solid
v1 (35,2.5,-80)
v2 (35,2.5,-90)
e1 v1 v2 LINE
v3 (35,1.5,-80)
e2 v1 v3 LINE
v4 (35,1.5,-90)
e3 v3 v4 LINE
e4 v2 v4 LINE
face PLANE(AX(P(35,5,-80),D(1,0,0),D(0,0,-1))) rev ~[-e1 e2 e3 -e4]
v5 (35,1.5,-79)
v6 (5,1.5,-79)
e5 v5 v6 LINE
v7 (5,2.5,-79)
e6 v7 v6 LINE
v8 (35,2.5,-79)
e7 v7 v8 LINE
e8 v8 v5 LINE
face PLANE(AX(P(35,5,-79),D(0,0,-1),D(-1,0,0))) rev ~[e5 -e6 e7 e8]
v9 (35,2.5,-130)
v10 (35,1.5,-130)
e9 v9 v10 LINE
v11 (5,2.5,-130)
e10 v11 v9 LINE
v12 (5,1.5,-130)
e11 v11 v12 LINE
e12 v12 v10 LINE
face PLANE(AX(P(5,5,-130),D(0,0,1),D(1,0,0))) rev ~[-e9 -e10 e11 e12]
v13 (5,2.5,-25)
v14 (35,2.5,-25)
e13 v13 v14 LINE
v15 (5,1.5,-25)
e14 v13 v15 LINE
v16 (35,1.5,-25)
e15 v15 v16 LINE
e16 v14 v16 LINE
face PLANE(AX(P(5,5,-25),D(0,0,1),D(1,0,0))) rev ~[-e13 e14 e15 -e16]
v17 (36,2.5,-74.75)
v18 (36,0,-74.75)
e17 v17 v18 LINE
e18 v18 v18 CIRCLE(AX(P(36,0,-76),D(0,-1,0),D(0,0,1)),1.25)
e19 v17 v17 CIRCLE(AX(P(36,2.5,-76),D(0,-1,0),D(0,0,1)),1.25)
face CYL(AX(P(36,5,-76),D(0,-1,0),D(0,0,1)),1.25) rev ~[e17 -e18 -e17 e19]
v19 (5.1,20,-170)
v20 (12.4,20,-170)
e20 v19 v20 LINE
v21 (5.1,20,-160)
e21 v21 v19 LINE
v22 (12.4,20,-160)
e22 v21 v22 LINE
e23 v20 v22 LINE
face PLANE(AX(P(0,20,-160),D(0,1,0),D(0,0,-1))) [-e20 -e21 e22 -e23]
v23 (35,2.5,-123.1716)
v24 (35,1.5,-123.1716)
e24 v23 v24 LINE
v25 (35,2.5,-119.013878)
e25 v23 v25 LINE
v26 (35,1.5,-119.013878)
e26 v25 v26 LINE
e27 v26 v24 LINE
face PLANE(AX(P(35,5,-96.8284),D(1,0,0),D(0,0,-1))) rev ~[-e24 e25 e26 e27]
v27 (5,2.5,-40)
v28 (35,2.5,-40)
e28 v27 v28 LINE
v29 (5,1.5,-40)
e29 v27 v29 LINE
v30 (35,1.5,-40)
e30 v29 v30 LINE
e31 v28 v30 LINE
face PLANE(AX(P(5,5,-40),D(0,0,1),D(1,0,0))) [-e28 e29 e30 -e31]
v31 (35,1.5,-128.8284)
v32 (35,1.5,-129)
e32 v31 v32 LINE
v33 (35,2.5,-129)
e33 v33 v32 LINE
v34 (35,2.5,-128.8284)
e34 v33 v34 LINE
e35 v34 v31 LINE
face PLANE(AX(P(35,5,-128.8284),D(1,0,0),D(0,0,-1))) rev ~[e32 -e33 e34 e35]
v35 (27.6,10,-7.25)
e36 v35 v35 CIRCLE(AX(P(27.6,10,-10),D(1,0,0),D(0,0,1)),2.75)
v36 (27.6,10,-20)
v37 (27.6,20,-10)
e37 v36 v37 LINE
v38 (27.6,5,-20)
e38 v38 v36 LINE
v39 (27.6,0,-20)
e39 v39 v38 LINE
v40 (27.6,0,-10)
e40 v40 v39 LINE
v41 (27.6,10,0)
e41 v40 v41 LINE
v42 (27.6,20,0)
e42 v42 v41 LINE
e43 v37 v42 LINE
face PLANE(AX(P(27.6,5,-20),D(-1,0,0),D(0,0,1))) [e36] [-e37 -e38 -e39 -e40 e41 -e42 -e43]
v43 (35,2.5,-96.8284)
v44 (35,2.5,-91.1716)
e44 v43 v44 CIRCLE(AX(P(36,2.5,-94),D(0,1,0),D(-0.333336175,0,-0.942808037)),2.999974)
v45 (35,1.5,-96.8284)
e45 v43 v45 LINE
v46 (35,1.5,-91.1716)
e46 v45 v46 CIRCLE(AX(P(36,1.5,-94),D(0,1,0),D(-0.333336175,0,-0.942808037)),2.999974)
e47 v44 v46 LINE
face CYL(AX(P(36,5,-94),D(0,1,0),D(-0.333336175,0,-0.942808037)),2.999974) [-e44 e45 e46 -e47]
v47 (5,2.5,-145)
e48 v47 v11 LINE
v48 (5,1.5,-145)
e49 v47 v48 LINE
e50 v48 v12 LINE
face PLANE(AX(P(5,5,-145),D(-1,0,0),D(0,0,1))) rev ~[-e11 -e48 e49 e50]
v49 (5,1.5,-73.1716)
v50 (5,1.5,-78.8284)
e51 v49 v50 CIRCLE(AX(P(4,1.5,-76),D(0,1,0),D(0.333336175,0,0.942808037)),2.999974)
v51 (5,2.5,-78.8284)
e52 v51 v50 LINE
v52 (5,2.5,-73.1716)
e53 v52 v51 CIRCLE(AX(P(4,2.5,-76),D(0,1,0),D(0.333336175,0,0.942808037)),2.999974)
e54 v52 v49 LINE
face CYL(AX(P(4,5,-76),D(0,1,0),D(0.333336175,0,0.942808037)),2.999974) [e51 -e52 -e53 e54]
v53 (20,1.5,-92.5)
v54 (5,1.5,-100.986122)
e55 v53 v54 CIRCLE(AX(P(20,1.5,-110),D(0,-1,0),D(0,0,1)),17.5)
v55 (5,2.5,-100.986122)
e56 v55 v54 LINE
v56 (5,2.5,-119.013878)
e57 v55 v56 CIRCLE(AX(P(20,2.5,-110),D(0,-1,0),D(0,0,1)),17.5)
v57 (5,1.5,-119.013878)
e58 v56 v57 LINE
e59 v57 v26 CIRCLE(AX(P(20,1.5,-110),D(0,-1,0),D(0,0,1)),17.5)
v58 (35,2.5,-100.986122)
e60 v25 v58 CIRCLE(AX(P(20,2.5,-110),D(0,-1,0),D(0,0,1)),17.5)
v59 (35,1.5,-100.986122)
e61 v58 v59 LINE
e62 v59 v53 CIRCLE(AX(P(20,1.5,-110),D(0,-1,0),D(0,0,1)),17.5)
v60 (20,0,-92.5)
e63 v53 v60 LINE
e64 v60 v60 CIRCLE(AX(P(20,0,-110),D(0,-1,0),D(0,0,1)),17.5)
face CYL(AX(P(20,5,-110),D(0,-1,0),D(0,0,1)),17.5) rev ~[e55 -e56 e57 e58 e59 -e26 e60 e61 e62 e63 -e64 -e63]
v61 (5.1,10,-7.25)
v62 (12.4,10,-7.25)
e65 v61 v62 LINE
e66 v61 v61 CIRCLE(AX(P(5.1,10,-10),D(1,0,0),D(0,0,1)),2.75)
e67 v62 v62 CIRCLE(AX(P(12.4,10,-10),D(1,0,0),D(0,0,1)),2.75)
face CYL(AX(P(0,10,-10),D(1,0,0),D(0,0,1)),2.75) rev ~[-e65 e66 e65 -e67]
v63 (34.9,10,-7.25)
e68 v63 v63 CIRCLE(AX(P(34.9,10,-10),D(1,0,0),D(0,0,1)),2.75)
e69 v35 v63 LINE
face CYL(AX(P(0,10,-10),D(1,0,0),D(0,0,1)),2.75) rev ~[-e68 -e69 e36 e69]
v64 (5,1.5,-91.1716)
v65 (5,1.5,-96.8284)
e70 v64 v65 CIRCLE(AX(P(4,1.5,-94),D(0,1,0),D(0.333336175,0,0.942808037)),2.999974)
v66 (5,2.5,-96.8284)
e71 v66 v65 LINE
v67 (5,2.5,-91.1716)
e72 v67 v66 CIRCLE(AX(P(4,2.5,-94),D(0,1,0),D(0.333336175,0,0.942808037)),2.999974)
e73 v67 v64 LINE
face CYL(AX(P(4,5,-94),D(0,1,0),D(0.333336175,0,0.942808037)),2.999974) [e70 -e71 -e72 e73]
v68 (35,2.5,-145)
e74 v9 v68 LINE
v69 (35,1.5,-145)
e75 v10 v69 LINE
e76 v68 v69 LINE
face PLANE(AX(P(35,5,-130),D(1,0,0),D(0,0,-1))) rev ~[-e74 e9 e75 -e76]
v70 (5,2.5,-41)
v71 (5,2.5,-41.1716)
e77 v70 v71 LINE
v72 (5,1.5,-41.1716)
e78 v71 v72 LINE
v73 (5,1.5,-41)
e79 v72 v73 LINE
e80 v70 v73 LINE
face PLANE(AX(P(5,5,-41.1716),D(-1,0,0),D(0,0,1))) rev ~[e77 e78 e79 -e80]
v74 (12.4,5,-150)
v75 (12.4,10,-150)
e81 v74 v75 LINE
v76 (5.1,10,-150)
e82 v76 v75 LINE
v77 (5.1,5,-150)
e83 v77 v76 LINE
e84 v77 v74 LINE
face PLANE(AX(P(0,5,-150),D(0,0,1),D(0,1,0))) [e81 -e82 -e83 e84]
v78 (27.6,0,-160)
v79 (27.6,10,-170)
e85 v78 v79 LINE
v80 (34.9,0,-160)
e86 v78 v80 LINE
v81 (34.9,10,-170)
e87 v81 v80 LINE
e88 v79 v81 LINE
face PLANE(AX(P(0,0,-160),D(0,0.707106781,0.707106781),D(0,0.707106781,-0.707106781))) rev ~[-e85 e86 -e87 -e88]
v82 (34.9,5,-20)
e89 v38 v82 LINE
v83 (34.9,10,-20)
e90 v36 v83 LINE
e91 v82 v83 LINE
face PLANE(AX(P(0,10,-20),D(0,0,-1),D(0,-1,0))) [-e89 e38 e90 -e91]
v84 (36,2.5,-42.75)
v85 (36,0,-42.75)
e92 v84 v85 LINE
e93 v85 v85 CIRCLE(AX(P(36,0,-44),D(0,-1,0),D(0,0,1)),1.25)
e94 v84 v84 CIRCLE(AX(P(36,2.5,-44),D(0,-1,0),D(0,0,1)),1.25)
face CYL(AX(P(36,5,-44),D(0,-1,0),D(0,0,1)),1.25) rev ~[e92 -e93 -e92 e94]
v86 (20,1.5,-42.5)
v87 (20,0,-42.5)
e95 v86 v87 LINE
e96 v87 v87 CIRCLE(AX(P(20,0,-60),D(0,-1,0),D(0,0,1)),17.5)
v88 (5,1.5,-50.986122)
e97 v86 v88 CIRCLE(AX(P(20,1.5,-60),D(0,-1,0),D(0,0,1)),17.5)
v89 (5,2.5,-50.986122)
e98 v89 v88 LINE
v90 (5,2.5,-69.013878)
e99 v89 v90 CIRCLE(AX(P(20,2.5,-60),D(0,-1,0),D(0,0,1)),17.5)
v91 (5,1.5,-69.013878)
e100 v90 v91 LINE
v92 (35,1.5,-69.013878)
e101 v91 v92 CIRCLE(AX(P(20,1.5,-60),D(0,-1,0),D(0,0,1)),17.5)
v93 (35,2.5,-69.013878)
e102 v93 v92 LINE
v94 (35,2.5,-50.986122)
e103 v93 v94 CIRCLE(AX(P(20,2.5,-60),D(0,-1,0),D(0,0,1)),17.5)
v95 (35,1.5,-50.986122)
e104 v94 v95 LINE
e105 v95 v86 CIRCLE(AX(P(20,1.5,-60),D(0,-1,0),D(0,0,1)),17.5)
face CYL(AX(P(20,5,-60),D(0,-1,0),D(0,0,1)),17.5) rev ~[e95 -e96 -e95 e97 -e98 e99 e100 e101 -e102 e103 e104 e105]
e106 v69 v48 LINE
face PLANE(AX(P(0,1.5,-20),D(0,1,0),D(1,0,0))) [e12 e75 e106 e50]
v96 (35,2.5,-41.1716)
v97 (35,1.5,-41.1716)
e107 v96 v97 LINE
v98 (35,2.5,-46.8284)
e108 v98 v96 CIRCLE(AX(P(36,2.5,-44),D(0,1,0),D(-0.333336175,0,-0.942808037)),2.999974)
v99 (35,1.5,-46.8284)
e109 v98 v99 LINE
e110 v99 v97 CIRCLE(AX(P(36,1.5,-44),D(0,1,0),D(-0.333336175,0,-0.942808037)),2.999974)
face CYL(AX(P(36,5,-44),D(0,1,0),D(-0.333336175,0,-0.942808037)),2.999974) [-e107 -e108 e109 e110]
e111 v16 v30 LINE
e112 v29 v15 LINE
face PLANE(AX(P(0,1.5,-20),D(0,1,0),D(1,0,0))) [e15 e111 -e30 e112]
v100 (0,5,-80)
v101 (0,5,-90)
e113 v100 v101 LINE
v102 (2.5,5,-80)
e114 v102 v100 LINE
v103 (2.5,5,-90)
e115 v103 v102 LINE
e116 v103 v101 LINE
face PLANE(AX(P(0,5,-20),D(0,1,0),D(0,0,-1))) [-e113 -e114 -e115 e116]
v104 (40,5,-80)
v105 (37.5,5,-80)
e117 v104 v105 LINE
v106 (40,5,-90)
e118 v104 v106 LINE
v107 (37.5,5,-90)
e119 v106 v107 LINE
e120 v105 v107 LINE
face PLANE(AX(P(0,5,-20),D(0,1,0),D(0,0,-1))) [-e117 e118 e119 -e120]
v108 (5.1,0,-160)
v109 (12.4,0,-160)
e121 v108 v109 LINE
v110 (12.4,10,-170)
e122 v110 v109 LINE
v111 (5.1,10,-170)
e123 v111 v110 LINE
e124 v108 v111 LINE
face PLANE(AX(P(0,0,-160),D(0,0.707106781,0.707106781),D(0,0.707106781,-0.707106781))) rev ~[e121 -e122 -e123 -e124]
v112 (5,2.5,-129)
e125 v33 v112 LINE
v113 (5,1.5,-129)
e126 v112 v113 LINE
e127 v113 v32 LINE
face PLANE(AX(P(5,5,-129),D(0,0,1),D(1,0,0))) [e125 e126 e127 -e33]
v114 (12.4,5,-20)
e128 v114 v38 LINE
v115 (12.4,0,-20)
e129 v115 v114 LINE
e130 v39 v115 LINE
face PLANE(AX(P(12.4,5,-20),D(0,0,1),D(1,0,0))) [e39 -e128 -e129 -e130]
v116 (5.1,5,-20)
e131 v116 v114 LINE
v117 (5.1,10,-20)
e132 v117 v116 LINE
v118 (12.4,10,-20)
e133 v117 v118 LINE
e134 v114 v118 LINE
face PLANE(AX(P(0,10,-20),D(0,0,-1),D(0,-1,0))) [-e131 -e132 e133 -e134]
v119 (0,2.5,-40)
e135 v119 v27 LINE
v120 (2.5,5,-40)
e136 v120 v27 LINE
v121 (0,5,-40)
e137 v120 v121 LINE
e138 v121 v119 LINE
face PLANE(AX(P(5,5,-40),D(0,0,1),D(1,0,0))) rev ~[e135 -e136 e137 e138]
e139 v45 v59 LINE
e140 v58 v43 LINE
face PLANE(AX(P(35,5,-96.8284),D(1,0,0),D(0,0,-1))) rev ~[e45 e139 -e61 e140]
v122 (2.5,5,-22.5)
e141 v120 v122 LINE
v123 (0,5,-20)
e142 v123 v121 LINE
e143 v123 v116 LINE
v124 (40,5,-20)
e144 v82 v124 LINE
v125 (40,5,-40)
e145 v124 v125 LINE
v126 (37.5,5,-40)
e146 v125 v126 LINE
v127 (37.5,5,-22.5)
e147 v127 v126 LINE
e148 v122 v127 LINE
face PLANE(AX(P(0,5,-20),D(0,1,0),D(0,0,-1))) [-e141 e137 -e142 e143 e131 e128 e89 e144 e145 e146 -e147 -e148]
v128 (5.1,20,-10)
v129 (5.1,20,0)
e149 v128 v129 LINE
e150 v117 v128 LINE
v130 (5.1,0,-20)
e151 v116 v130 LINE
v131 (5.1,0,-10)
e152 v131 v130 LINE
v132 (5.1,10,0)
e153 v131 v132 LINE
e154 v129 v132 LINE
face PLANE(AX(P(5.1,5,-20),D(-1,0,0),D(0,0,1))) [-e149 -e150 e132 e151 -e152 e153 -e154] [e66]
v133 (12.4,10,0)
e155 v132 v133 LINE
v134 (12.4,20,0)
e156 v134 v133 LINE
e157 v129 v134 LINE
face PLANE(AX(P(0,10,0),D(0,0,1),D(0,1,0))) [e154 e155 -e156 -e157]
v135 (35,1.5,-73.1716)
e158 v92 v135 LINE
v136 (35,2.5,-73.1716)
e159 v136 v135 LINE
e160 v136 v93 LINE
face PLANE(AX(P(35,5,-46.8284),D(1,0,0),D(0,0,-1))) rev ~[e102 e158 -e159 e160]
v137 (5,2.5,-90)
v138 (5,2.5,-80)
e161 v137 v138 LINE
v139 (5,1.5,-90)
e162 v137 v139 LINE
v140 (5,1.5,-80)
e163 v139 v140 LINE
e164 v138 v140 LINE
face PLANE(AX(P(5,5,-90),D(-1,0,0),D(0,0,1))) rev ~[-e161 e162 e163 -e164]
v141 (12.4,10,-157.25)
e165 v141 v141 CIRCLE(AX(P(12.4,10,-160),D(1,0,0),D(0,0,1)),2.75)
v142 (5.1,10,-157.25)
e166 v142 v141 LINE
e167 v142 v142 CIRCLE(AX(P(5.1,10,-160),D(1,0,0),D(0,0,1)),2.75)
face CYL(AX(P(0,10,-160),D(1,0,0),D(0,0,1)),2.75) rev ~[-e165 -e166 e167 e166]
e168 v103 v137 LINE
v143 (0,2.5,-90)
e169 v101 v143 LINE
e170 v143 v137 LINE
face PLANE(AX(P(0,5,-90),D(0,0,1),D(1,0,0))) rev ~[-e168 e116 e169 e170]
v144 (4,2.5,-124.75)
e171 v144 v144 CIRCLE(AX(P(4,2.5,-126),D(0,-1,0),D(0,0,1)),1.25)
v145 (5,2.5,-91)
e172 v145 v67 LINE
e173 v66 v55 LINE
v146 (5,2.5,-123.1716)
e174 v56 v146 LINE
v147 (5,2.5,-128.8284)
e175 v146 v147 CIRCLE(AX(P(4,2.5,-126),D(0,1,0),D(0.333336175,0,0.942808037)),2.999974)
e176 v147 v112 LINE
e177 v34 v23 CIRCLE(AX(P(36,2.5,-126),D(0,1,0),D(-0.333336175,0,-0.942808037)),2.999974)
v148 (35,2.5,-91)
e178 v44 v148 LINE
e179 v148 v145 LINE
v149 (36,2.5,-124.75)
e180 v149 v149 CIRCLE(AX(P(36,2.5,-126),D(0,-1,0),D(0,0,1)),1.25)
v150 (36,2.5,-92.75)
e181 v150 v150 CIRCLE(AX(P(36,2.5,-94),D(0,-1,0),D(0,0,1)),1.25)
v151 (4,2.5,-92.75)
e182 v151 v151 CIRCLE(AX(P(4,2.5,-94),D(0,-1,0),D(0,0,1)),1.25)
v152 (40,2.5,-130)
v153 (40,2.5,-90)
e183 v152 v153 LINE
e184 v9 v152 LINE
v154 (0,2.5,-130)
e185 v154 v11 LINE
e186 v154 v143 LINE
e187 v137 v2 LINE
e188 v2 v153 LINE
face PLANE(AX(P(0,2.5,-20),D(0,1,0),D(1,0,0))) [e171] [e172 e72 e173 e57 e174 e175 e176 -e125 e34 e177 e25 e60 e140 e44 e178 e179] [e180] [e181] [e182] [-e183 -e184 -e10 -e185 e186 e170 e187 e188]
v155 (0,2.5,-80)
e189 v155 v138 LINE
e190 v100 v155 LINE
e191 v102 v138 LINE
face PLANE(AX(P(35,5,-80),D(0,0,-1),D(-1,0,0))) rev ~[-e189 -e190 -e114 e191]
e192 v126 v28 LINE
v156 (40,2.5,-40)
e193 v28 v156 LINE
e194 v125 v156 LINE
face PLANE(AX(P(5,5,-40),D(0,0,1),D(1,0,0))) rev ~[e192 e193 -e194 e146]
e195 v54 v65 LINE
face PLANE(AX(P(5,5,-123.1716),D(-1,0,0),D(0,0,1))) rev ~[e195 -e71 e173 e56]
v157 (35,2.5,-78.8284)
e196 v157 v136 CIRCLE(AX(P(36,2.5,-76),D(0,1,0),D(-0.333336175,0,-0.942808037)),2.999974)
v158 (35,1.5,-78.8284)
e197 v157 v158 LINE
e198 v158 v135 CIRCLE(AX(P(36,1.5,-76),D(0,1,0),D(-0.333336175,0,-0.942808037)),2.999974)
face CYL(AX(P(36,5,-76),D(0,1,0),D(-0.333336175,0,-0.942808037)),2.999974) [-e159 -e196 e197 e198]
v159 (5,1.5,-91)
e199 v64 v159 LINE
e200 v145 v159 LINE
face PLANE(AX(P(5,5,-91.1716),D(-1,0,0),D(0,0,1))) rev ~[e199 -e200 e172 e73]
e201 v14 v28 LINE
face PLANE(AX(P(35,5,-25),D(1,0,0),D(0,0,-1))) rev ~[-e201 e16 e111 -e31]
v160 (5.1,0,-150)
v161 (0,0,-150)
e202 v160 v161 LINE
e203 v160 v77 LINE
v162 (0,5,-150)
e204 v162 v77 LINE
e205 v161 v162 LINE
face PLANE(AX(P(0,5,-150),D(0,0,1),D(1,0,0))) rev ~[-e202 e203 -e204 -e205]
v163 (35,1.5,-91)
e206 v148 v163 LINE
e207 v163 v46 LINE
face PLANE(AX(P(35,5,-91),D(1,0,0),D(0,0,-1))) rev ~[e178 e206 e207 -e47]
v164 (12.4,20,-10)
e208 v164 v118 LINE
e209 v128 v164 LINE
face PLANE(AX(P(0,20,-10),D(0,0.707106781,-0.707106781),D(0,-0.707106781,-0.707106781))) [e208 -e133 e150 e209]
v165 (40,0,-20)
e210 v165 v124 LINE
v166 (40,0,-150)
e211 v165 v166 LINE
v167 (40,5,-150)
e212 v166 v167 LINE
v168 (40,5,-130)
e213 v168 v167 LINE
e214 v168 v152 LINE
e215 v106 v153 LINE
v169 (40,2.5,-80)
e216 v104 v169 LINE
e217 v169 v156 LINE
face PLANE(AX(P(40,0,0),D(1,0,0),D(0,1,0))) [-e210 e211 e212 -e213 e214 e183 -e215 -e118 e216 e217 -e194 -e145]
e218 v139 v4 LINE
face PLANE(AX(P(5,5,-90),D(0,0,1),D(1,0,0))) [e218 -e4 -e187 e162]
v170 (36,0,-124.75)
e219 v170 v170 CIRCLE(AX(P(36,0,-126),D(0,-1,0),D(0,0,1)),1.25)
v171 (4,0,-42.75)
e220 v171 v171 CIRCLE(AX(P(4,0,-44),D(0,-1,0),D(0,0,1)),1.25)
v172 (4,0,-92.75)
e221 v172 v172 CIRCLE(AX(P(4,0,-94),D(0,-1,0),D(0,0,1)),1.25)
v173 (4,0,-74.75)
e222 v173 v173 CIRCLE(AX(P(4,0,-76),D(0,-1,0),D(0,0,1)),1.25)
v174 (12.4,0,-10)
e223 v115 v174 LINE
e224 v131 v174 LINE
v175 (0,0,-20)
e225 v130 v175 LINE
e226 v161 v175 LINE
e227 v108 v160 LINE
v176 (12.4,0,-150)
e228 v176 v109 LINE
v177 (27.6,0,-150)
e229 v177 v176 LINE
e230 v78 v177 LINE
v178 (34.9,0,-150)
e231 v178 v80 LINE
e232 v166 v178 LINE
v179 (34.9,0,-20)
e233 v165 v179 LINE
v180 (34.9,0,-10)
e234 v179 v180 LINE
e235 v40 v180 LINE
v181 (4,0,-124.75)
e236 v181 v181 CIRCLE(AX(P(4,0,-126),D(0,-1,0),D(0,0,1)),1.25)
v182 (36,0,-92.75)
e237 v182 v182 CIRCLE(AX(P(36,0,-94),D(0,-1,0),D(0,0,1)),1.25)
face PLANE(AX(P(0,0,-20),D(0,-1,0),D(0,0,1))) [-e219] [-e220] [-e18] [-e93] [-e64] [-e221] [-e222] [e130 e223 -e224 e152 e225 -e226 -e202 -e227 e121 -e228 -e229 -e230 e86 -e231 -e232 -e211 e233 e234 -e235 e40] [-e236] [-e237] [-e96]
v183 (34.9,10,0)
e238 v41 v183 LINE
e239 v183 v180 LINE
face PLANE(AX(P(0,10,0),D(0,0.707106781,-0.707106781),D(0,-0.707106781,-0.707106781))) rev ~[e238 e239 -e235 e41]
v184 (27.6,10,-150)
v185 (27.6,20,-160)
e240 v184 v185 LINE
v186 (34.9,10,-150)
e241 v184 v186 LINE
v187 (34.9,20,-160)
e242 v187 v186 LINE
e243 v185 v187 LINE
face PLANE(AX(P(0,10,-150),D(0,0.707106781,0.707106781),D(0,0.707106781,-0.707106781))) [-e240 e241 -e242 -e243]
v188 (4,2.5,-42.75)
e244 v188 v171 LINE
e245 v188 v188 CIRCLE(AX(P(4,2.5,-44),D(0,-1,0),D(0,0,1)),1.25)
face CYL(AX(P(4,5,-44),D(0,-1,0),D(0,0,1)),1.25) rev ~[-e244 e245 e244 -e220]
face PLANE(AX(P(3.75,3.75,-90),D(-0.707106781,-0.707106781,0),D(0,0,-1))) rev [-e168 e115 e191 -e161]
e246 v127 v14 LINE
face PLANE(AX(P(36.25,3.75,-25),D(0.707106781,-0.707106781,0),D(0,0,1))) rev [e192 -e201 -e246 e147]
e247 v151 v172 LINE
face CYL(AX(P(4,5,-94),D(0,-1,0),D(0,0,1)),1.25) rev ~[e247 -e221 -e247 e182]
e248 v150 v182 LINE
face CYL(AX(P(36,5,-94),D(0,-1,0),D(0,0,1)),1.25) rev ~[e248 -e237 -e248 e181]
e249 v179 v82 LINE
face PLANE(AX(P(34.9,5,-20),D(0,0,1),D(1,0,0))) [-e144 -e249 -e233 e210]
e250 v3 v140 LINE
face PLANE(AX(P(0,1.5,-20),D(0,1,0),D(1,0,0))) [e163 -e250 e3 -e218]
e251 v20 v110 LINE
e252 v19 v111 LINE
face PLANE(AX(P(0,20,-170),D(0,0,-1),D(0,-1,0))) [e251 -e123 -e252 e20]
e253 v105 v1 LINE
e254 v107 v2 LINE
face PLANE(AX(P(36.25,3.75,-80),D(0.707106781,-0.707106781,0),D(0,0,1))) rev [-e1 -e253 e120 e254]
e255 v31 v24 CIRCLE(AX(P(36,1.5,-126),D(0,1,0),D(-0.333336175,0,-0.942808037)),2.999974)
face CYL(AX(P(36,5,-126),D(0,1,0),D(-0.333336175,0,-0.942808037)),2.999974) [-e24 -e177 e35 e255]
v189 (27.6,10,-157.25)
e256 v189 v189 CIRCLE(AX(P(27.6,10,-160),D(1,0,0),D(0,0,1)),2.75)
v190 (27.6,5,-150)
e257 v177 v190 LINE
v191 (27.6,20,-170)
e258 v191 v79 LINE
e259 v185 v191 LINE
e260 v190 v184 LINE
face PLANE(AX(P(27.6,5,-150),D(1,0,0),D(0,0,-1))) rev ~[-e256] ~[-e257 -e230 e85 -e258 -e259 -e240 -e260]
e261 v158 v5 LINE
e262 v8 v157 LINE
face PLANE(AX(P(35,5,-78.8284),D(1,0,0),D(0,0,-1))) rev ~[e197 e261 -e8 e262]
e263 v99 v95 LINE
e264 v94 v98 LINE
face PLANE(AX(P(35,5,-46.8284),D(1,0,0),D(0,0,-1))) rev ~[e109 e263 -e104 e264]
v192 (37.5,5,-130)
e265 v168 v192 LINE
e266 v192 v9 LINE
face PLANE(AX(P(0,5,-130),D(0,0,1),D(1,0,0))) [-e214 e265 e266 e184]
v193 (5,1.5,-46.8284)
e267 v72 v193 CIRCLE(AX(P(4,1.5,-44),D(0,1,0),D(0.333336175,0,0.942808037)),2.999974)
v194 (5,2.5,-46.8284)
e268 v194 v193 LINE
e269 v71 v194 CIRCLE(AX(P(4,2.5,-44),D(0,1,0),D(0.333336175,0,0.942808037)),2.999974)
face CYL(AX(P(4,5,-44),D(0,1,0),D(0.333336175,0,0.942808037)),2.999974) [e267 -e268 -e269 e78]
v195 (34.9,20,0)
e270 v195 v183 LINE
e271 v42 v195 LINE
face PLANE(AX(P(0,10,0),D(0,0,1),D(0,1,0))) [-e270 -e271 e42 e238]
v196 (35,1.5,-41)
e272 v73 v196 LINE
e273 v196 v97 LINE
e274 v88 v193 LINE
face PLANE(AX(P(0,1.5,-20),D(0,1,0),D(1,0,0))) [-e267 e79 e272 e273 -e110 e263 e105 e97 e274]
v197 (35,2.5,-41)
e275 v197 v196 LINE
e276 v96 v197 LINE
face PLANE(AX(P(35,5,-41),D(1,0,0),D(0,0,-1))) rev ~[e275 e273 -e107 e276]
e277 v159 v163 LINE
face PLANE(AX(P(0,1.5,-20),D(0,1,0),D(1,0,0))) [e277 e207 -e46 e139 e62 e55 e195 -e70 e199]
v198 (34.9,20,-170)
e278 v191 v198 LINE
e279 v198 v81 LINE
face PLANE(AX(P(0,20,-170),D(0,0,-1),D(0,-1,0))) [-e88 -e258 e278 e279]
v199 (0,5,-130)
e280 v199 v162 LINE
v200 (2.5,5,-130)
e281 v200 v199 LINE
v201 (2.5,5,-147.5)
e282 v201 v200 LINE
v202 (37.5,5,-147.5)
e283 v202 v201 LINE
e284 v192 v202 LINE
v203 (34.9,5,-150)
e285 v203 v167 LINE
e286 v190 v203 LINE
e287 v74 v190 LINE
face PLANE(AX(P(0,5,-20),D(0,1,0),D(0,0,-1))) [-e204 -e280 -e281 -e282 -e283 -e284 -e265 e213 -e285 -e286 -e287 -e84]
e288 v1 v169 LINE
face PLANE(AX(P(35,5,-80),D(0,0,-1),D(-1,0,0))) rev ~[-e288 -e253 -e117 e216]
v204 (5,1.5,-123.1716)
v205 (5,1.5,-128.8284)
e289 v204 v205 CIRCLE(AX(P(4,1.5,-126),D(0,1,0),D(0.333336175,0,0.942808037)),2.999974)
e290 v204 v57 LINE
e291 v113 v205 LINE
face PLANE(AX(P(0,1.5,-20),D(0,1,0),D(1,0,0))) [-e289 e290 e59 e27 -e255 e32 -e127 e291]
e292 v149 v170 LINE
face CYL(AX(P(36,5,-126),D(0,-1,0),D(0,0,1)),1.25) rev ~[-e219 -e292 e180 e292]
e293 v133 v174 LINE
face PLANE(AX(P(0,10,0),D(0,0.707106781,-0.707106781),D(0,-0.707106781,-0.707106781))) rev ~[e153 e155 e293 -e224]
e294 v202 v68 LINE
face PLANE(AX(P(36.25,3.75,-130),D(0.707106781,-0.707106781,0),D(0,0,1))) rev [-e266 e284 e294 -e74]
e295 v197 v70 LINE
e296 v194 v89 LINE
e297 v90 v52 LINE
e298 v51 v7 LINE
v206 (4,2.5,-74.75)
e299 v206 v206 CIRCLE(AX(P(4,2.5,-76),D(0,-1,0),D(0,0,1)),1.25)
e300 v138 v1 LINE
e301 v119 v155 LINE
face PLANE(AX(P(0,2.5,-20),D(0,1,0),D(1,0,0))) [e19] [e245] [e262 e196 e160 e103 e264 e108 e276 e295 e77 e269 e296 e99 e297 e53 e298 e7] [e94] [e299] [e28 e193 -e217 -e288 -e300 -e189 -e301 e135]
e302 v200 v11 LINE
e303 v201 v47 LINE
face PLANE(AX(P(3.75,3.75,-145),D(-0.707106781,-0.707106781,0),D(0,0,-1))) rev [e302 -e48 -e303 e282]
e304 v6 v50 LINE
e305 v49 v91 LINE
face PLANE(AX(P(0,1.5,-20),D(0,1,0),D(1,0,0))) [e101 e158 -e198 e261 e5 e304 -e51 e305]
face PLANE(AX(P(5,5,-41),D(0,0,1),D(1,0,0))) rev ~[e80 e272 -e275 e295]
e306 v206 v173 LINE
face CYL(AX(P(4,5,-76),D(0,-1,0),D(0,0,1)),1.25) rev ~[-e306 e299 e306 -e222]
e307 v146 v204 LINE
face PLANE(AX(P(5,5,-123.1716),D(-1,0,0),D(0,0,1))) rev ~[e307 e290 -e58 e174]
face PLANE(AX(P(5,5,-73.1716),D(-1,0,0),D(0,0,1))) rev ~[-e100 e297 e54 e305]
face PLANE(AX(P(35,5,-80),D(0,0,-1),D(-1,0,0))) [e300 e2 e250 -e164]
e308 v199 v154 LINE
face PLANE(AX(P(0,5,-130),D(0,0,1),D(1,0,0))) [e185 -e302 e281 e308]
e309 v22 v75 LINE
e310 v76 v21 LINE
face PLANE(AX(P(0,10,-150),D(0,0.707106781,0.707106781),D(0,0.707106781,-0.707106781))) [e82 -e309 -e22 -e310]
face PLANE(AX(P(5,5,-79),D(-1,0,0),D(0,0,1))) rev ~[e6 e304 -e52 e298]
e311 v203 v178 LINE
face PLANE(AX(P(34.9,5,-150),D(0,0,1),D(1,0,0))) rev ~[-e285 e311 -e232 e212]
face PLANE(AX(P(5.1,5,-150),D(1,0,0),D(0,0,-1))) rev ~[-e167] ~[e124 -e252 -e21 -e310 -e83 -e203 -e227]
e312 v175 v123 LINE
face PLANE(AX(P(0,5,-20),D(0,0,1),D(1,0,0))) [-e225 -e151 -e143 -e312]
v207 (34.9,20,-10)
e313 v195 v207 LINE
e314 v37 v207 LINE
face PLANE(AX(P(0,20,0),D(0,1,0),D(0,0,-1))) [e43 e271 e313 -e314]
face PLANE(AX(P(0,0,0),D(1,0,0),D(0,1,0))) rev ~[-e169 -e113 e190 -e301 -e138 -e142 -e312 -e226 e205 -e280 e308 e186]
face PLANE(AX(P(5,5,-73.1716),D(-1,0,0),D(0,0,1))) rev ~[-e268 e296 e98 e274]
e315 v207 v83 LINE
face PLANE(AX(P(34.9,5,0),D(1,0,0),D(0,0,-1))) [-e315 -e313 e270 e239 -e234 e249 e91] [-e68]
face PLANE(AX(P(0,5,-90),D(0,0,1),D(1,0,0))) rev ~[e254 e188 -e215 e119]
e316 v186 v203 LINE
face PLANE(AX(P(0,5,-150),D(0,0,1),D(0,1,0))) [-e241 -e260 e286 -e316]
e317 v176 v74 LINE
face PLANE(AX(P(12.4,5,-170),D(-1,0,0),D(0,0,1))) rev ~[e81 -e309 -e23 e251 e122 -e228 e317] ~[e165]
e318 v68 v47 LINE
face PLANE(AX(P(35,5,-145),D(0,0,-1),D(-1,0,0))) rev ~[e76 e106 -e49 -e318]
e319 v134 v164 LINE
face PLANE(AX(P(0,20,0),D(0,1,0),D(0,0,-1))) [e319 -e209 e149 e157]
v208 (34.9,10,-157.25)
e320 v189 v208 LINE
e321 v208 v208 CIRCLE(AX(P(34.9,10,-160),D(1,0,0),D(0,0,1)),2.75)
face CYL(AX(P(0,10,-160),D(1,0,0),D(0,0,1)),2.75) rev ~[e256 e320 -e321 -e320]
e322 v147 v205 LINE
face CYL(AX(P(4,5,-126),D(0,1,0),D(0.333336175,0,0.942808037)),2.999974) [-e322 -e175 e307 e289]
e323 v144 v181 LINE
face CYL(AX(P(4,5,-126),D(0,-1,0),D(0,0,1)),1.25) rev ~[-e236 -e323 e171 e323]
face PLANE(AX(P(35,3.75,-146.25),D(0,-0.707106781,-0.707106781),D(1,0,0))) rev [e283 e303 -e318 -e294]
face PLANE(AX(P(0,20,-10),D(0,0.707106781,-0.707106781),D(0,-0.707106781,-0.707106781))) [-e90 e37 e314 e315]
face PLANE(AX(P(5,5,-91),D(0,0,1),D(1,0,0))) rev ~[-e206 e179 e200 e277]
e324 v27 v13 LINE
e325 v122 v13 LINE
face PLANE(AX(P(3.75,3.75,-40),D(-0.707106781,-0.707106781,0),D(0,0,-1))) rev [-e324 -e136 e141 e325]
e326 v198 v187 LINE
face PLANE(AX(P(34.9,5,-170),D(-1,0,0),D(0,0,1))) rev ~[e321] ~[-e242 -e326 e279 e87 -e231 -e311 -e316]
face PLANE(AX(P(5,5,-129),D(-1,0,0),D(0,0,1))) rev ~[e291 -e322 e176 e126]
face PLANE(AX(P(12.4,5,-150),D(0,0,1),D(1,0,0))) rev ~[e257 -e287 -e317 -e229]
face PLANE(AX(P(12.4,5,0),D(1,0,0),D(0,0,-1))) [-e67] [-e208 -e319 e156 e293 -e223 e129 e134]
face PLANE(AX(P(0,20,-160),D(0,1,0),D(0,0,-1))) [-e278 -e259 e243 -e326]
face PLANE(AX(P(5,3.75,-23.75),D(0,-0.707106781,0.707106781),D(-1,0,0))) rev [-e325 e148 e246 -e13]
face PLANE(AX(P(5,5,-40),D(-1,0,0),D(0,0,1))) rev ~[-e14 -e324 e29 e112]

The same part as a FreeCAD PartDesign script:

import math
import FreeCAD as App
import Part
import Sketcher

V = App.Vector


def edges_at(feature, points):
    """Names of the edges that pass closest to the given points."""
    edges = feature.Shape.Edges
    near = lambda p: min(range(len(edges)), key=lambda i: edges[i].distToShape(Part.Vertex(*p))[0])
    return sorted({f"Edge{near(p) + 1}" for p in points})


def add_polygon(sketch, points):
    """Adds a closed chain of lines whose ends are joined by coincident constraints."""
    first, n = sketch.GeometryCount, len(points)
    for a, b in zip(points, points[1:] + points[:1]):
        sketch.addGeometry(Part.LineSegment(App.Vector(*a, 0), App.Vector(*b, 0)), False)
    for i in range(n):
        sketch.addConstraint(Sketcher.Constraint("Coincident", first + i, 2, first + (i + 1) % n, 1))

doc = App.newDocument("Part")
params = doc.addObject("Spreadsheet::Sheet", "Params")
for row, (alias, value) in enumerate([
    ("sketch1_width", "5 mm"),
    ("sketch1_height", "130 mm"),
    ("pad1_length", "40 mm"),
    ("sketch2_diameter", "5.5 mm"),
    ("hole_diameter", "5.5 mm"),
    ("sketch3_radius", "3 mm"),
    ("sketch3_height", "10 mm"),
    ("sketch3_height2", "15 mm"),
    ("pocket1_length", "3.5 mm"),
    ("sketch4_width", "40 mm"),
    ("pocket2_length", "2.5 mm"),
    ("sketch5_diameter", "2.5 mm"),
    ("hole2_diameter", "2.5 mm"),
    ("sketch6_diameter", "35 mm"),
    ("hole3_diameter", "35 mm"),
    ("chamfer_size", "2.5 mm"),
    ("sketch7_height", "20 mm"),
    ("sketch7_width", "5.1 mm"),
    ("sketch7_width2", "15.2 mm"),
], start=1):
    params.set(f"A{row}", alias)
    params.set(f"B{row}", "=" + value)
    params.setAlias(f"B{row}", alias)

body = doc.addObject("PartDesign::Body", "Body")

sketch1 = body.newObject("Sketcher::SketchObject", "Sketch")
sketch1.AttachmentSupport = (doc.getObject("YZ_Plane"), [""])
sketch1.MapMode = "FlatFace"
add_polygon(sketch1, [(20, 0), (10, 0), (0, -10), (0, -160), (10, -170), (20, -170), (20, -160), (10, -150), (5, -150), (5, -20), (10, -20), (20, -10)])
sketch1.addConstraint([
    Sketcher.Constraint("Horizontal", 0),
    Sketcher.Constraint("Vertical", 2),
    Sketcher.Constraint("Horizontal", 4),
    Sketcher.Constraint("Vertical", 5),
    Sketcher.Constraint("Horizontal", 7),
    Sketcher.Constraint("Vertical", 8),
    Sketcher.Constraint("Horizontal", 9),
    Sketcher.Constraint("Vertical", 11),
    Sketcher.Constraint("PointOnObject", 0, 2, -1),
    Sketcher.Constraint("PointOnObject", 1, 2, -2),
    Sketcher.Constraint("Perpendicular", 1, 3),
    Sketcher.Constraint("Parallel", 3, 6),
    Sketcher.Constraint("Perpendicular", 6, 10),
    Sketcher.Constraint("Horizontal", 2, 2, 5, 2),
    Sketcher.Constraint("Horizontal", 1, 2, 10, 2),
    Sketcher.Constraint("Vertical", 0, 2, 3, 2),
    Sketcher.Constraint("Vertical", 3, 2, 6, 2),
    Sketcher.Constraint("Vertical", 6, 2, 9, 2),
    Sketcher.Constraint("Vertical", 5, 2, 10, 2),
    Sketcher.Constraint("Equal", 4, 5),
    Sketcher.Constraint("Equal", 5, 11),
    Sketcher.Constraint("DistanceX", 7, 2, 7, 1, 5.0),
    Sketcher.Constraint("DistanceY", 8, 1, 8, 2, 130.0),
    Sketcher.Constraint("DistanceX", -1, 1, 4, 2, 20.0),
])
sketch1.setExpression("Constraints[33]", "Params.sketch1_width")
sketch1.setExpression("Constraints[34]", "Params.sketch1_height")
pad1 = body.newObject("PartDesign::Pad", "Pad")
pad1.Profile = sketch1
pad1.setExpression("Length", "Params.pad1_length")

sketch2 = body.newObject("Sketcher::SketchObject", "Sketch001")
sketch2.AttachmentSupport = (doc.getObject("YZ_Plane"), [""])
sketch2.MapMode = "FlatFace"
sketch2.addGeometry([
    Part.Circle(V(10, -160, 0), V(0, 0, 1), 2.75),
    Part.Circle(V(10, -10, 0), V(0, 0, 1), 2.75),
], False)
sketch2.addConstraint([
    Sketcher.Constraint("Equal", 0, 1),
    Sketcher.Constraint("Vertical", 0, 3, 1, 3),
    Sketcher.Constraint("Diameter", 0, 5.5),
    Sketcher.Constraint("DistanceX", -1, 1, 0, 3, 10.0),
    Sketcher.Constraint("DistanceY", 0, 3, -1, 1, 160.0),
    Sketcher.Constraint("DistanceY", 1, 3, -1, 1, 10.0),
])
sketch2.setExpression("Constraints[2]", "Params.sketch2_diameter")
doc.recompute()
hole = body.newObject("PartDesign::Hole", "Hole")
hole.Profile = sketch2
hole.ThreadType = "None"
hole.setExpression("Diameter", "Params.hole_diameter")
hole.DepthType = "ThroughAll"
hole.Reversed = True

sketch3 = body.newObject("Sketcher::SketchObject", "Sketch002")
sketch3.AttachmentSupport = (doc.getObject("XZ_Plane"), [""])
sketch3.MapMode = "FlatFace"
sketch3.AttachmentOffset = App.Placement(V(0, 0, -5), App.Rotation())
add_polygon(sketch3, [(5, -40), (5, -25), (35, -25), (35, -40)])
sketch3.addGeometry(Part.LineSegment(V(5, -41.1716, 0), V(5, -41, 0)), False)
sketch3.addGeometry(Part.LineSegment(V(5, -41, 0), V(35, -41, 0)), False)
sketch3.addGeometry(Part.LineSegment(V(35, -41, 0), V(35, -41.1716, 0)), False)
sketch3.addGeometry(Part.ArcOfCircle(Part.Circle(V(36, -44, 0), V(0, 0, 1), 2.999974), math.radians(109.471393), math.radians(250.528607)), False)
sketch3.addGeometry(Part.LineSegment(V(35, -46.8284, 0), V(35, -73.1716, 0)), False)
sketch3.addGeometry(Part.ArcOfCircle(Part.Circle(V(36, -76, 0), V(0, 0, 1), 2.999974), math.radians(109.471393), math.radians(250.528607)), False)
sketch3.addGeometry(Part.LineSegment(V(35, -78.8284, 0), V(35, -79, 0)), False)
sketch3.addGeometry(Part.LineSegment(V(35, -79, 0), V(5, -79, 0)), False)
sketch3.addGeometry(Part.LineSegment(V(5, -79, 0), V(5, -78.8284, 0)), False)
sketch3.addGeometry(Part.ArcOfCircle(Part.Circle(V(4, -76, 0), V(0, 0, 1), 2.999974), math.radians(-70.528607), math.radians(70.528607)), False)
sketch3.addGeometry(Part.LineSegment(V(5, -73.1716, 0), V(5, -46.8284, 0)), False)
sketch3.addGeometry(Part.ArcOfCircle(Part.Circle(V(4, -44, 0), V(0, 0, 1), 2.999974), math.radians(-70.528607), math.radians(70.528607)), False)
add_polygon(sketch3, [(5, -90), (5, -80), (35, -80), (35, -90)])
sketch3.addGeometry(Part.LineSegment(V(5, -91.1716, 0), V(5, -91, 0)), False)
sketch3.addGeometry(Part.LineSegment(V(5, -91, 0), V(35, -91, 0)), False)
sketch3.addGeometry(Part.LineSegment(V(35, -91, 0), V(35, -91.1716, 0)), False)
sketch3.addGeometry(Part.ArcOfCircle(Part.Circle(V(36, -94, 0), V(0, 0, 1), 2.999974), math.radians(109.471393), math.radians(250.528607)), False)
sketch3.addGeometry(Part.LineSegment(V(35, -96.8284, 0), V(35, -123.1716, 0)), False)
sketch3.addGeometry(Part.ArcOfCircle(Part.Circle(V(36, -126, 0), V(0, 0, 1), 2.999974), math.radians(109.471393), math.radians(250.528607)), False)
sketch3.addGeometry(Part.LineSegment(V(35, -128.8284, 0), V(35, -129, 0)), False)
sketch3.addGeometry(Part.LineSegment(V(35, -129, 0), V(5, -129, 0)), False)
sketch3.addGeometry(Part.LineSegment(V(5, -129, 0), V(5, -128.8284, 0)), False)
sketch3.addGeometry(Part.ArcOfCircle(Part.Circle(V(4, -126, 0), V(0, 0, 1), 2.999974), math.radians(-70.528607), math.radians(70.528607)), False)
sketch3.addGeometry(Part.LineSegment(V(5, -123.1716, 0), V(5, -96.8284, 0)), False)
sketch3.addGeometry(Part.ArcOfCircle(Part.Circle(V(4, -94, 0), V(0, 0, 1), 2.999974), math.radians(-70.528607), math.radians(70.528607)), False)
add_polygon(sketch3, [(5, -145), (5, -130), (35, -130), (35, -145)])
sketch3.addConstraint([
    Sketcher.Constraint("Coincident", 4, 2, 5, 1),
    Sketcher.Constraint("Coincident", 5, 2, 6, 1),
    Sketcher.Constraint("Coincident", 6, 2, 7, 1),
    Sketcher.Constraint("Coincident", 7, 2, 8, 1),
    Sketcher.Constraint("Coincident", 8, 2, 9, 1),
    Sketcher.Constraint("Coincident", 9, 2, 10, 1),
    Sketcher.Constraint("Coincident", 10, 2, 11, 1),
    Sketcher.Constraint("Coincident", 11, 2, 12, 1),
    Sketcher.Constraint("Coincident", 12, 2, 13, 1),
    Sketcher.Constraint("Coincident", 13, 2, 14, 1),
    Sketcher.Constraint("Coincident", 14, 2, 15, 1),
    Sketcher.Constraint("Coincident", 15, 2, 4, 1),
    Sketcher.Constraint("Coincident", 20, 2, 21, 1),
    Sketcher.Constraint("Coincident", 21, 2, 22, 1),
    Sketcher.Constraint("Coincident", 22, 2, 23, 1),
    Sketcher.Constraint("Coincident", 23, 2, 24, 1),
    Sketcher.Constraint("Coincident", 24, 2, 25, 1),
    Sketcher.Constraint("Coincident", 25, 2, 26, 1),
    Sketcher.Constraint("Coincident", 26, 2, 27, 1),
    Sketcher.Constraint("Coincident", 27, 2, 28, 1),
    Sketcher.Constraint("Coincident", 28, 2, 29, 1),
    Sketcher.Constraint("Coincident", 29, 2, 30, 1),
    Sketcher.Constraint("Coincident", 30, 2, 31, 1),
    Sketcher.Constraint("Coincident", 31, 2, 20, 1),
    Sketcher.Constraint("Vertical", 0),
    Sketcher.Constraint("Horizontal", 1),
    Sketcher.Constraint("Vertical", 2),
    Sketcher.Constraint("Horizontal", 3),
    Sketcher.Constraint("Vertical", 4),
    Sketcher.Constraint("Horizontal", 5),
    Sketcher.Constraint("Vertical", 6),
    Sketcher.Constraint("Vertical", 8),
    Sketcher.Constraint("Vertical", 10),
    Sketcher.Constraint("Horizontal", 11),
    Sketcher.Constraint("Vertical", 12),
    Sketcher.Constraint("Vertical", 14),
    Sketcher.Constraint("Vertical", 16),
    Sketcher.Constraint("Horizontal", 17),
    Sketcher.Constraint("Vertical", 18),
    Sketcher.Constraint("Horizontal", 19),
    Sketcher.Constraint("Vertical", 20),
    Sketcher.Constraint("Horizontal", 21),
    Sketcher.Constraint("Vertical", 22),
    Sketcher.Constraint("Vertical", 24),
    Sketcher.Constraint("Vertical", 26),
    Sketcher.Constraint("Horizontal", 27),
    Sketcher.Constraint("Vertical", 28),
    Sketcher.Constraint("Vertical", 30),
    Sketcher.Constraint("Vertical", 32),
    Sketcher.Constraint("Horizontal", 33),
    Sketcher.Constraint("Vertical", 34),
    Sketcher.Constraint("Horizontal", 35),
    Sketcher.Constraint("Equal", 7, 9),
    Sketcher.Constraint("Equal", 9, 13),
    Sketcher.Constraint("Equal", 13, 15),
    Sketcher.Constraint("Equal", 15, 23),
    Sketcher.Constraint("Equal", 23, 25),
    Sketcher.Constraint("Equal", 25, 29),
    Sketcher.Constraint("Equal", 29, 31),
    Sketcher.Constraint("Horizontal", 9, 3, 13, 3),
    Sketcher.Constraint("Horizontal", 7, 3, 15, 3),
    Sketcher.Constraint("Horizontal", 25, 3, 29, 3),
    Sketcher.Constraint("Horizontal", 23, 3, 31, 3),
    Sketcher.Constraint("Horizontal", 9, 2, 12, 2),
    Sketcher.Constraint("Horizontal", 8, 2, 13, 2),
    Sketcher.Constraint("Horizontal", 7, 2, 14, 2),
    Sketcher.Constraint("Horizontal", 6, 2, 15, 2),
    Sketcher.Constraint("Horizontal", 25, 2, 28, 2),
    Sketcher.Constraint("Horizontal", 24, 2, 29, 2),
    Sketcher.Constraint("Horizontal", 23, 2, 30, 2),
    Sketcher.Constraint("Horizontal", 22, 2, 31, 2),
    Sketcher.Constraint("Vertical", 7, 3, 9, 3),
    Sketcher.Constraint("Vertical", 9, 3, 23, 3),
    Sketcher.Constraint("Vertical", 23, 3, 25, 3),
    Sketcher.Constraint("Vertical", 15, 3, 29, 3),
    Sketcher.Constraint("Vertical", 3, 2, 4, 2),
    Sketcher.Constraint("Vertical", 2, 2, 5, 2),
    Sketcher.Constraint("Vertical", 6, 2, 7, 2),
    Sketcher.Constraint("Vertical", 8, 2, 9, 2),
    Sketcher.Constraint("Vertical", 15, 2, 16, 2),
    Sketcher.Constraint("Vertical", 10, 2, 17, 2),
    Sketcher.Constraint("Vertical", 19, 2, 20, 2),
    Sketcher.Constraint("Vertical", 22, 2, 23, 2),
    Sketcher.Constraint("Vertical", 24, 2, 25, 2),
    Sketcher.Constraint("Vertical", 31, 2, 32, 2),
    Sketcher.Constraint("Vertical", 26, 2, 33, 2),
    Sketcher.Constraint("Equal", 6, 10),
    Sketcher.Constraint("Equal", 12, 20),
    Sketcher.Constraint("Equal", 14, 24),
    Sketcher.Constraint("Equal", 22, 26),
    Sketcher.Constraint("Equal", 2, 32),
    Sketcher.Constraint("Radius", 7, 3.0),
    Sketcher.Constraint("DistanceY", 16, 1, 16, 2, 10.0),
    Sketcher.Constraint("DistanceX", -1, 1, 13, 3, 4.0),
    Sketcher.Constraint("DistanceX", -1, 1, 0, 2, 5.0),
    Sketcher.Constraint("DistanceY", 2, 2, -1, 1, 40.0),
    Sketcher.Constraint("DistanceY", 9, 3, 7, 3, 32.0),
    Sketcher.Constraint("DistanceX", 13, 3, 9, 3, 32.0),
    Sketcher.Constraint("DistanceY", 7, 3, 2, 2, 4.0),
    Sketcher.Constraint("DistanceY", 4, 2, 3, 2, 1.0),
    Sketcher.Constraint("DistanceY", 16, 2, 11, 2, 1.0),
    Sketcher.Constraint("DistanceY", 23, 3, 18, 2, 4.0),
    Sketcher.Constraint("DistanceY", 32, 2, 27, 2, 1.0),
    Sketcher.Constraint("DistanceY", 0, 1, 0, 2, 15.0),
])
sketch3.setExpression("Constraints[103]", "Params.sketch3_radius")
sketch3.setExpression("Constraints[104]", "Params.sketch3_height")
sketch3.setExpression("Constraints[115]", "Params.sketch3_height2")
pocket1 = body.newObject("PartDesign::Pocket", "Pocket")
pocket1.Profile = sketch3
pocket1.setExpression("Length", "Params.pocket1_length")
pocket1.Reversed = True

sketch4 = body.newObject("Sketcher::SketchObject", "Sketch003")
sketch4.AttachmentSupport = (doc.getObject("XZ_Plane"), [""])
sketch4.MapMode = "FlatFace"
sketch4.AttachmentOffset = App.Placement(V(0, 0, -5), App.Rotation())
add_polygon(sketch4, [(40, -40), (40, -80), (0, -80), (0, -40)])
add_polygon(sketch4, [(0, -90), (40, -90), (40, -130), (0, -130)])
sketch4.addConstraint([
    Sketcher.Constraint("Vertical", 0),
    Sketcher.Constraint("Horizontal", 1),
    Sketcher.Constraint("Vertical", 2),
    Sketcher.Constraint("Horizontal", 3),
    Sketcher.Constraint("Horizontal", 4),
    Sketcher.Constraint("Vertical", 5),
    Sketcher.Constraint("Horizontal", 6),
    Sketcher.Constraint("Vertical", 7),
    Sketcher.Constraint("PointOnObject", 1, 2, -2),
    Sketcher.Constraint("PointOnObject", 6, 2, -2),
    Sketcher.Constraint("Vertical", 3, 2, 4, 2),
    Sketcher.Constraint("Equal", 6, 0),
    Sketcher.Constraint("Equal", 2, 5),
    Sketcher.Constraint("DistanceX", 1, 2, 1, 1, 40.0),
    Sketcher.Constraint("DistanceY", 2, 2, -1, 1, 40.0),
    Sketcher.Constraint("DistanceY", 4, 2, 0, 2, 10.0),
])
sketch4.setExpression("Constraints[21]", "Params.sketch4_width")
pocket2 = body.newObject("PartDesign::Pocket", "Pocket001")
pocket2.Profile = sketch4
pocket2.setExpression("Length", "Params.pocket2_length")
pocket2.Reversed = True

sketch5 = body.newObject("Sketcher::SketchObject", "Sketch004")
sketch5.AttachmentSupport = (doc.getObject("XZ_Plane"), [""])
sketch5.MapMode = "FlatFace"
sketch5.AttachmentOffset = App.Placement(V(0, 0, -5), App.Rotation())
sketch5.addGeometry([
    Part.Circle(V(4, -44, 0), V(0, 0, 1), 1.25),
    Part.Circle(V(4, -76, 0), V(0, 0, 1), 1.25),
    Part.Circle(V(36, -44, 0), V(0, 0, 1), 1.25),
    Part.Circle(V(36, -76, 0), V(0, 0, 1), 1.25),
    Part.Circle(V(4, -126, 0), V(0, 0, 1), 1.25),
    Part.Circle(V(4, -94, 0), V(0, 0, 1), 1.25),
    Part.Circle(V(36, -94, 0), V(0, 0, 1), 1.25),
    Part.Circle(V(36, -126, 0), V(0, 0, 1), 1.25),
], False)
sketch5.addConstraint([
    Sketcher.Constraint("Equal", 0, 1),
    Sketcher.Constraint("Equal", 1, 2),
    Sketcher.Constraint("Equal", 2, 3),
    Sketcher.Constraint("Equal", 3, 4),
    Sketcher.Constraint("Equal", 4, 5),
    Sketcher.Constraint("Equal", 5, 6),
    Sketcher.Constraint("Equal", 6, 7),
    Sketcher.Constraint("Horizontal", 0, 3, 2, 3),
    Sketcher.Constraint("Horizontal", 1, 3, 3, 3),
    Sketcher.Constraint("Horizontal", 5, 3, 6, 3),
    Sketcher.Constraint("Horizontal", 4, 3, 7, 3),
    Sketcher.Constraint("Vertical", 0, 3, 1, 3),
    Sketcher.Constraint("Vertical", 2, 3, 3, 3),
    Sketcher.Constraint("Vertical", 1, 3, 4, 3),
    Sketcher.Constraint("Vertical", 4, 3, 5, 3),
    Sketcher.Constraint("Vertical", 3, 3, 6, 3),
    Sketcher.Constraint("Vertical", 6, 3, 7, 3),
    Sketcher.Constraint("Diameter", 0, 2.5),
    Sketcher.Constraint("DistanceX", -1, 1, 0, 3, 4.0),
    Sketcher.Constraint("DistanceY", 0, 3, -1, 1, 44.0),
    Sketcher.Constraint("DistanceY", 1, 3, -1, 1, 76.0),
    Sketcher.Constraint("DistanceX", -1, 1, 2, 3, 36.0),
    Sketcher.Constraint("DistanceY", 4, 3, -1, 1, 126.0),
    Sketcher.Constraint("DistanceY", 5, 3, -1, 1, 94.0),
])
sketch5.setExpression("Constraints[17]", "Params.sketch5_diameter")
doc.recompute()
hole2 = body.newObject("PartDesign::Hole", "Hole001")
hole2.Profile = sketch5
hole2.ThreadType = "None"
hole2.setExpression("Diameter", "Params.hole2_diameter")
hole2.DepthType = "ThroughAll"
hole2.Reversed = True

sketch6 = body.newObject("Sketcher::SketchObject", "Sketch005")
sketch6.AttachmentSupport = (doc.getObject("XZ_Plane"), [""])
sketch6.MapMode = "FlatFace"
sketch6.AttachmentOffset = App.Placement(V(0, 0, -5), App.Rotation())
sketch6.addGeometry([
    Part.Circle(V(20, -60, 0), V(0, 0, 1), 17.5),
    Part.Circle(V(20, -110, 0), V(0, 0, 1), 17.5),
], False)
sketch6.addConstraint([
    Sketcher.Constraint("Equal", 0, 1),
    Sketcher.Constraint("Vertical", 0, 3, 1, 3),
    Sketcher.Constraint("Diameter", 0, 35.0),
    Sketcher.Constraint("DistanceX", -1, 1, 0, 3, 20.0),
    Sketcher.Constraint("DistanceY", 0, 3, -1, 1, 60.0),
    Sketcher.Constraint("DistanceY", 1, 3, -1, 1, 110.0),
])
sketch6.setExpression("Constraints[2]", "Params.sketch6_diameter")
doc.recompute()
hole3 = body.newObject("PartDesign::Hole", "Hole002")
hole3.Profile = sketch6
hole3.ThreadType = "None"
hole3.setExpression("Diameter", "Params.hole3_diameter")
hole3.DepthType = "ThroughAll"
hole3.Reversed = True
doc.recompute()

chamfer = body.newObject("PartDesign::Chamfer", "Chamfer")
chamfer.Base = (hole3, edges_at(hole3, [
    (35, 5, -137.5),
    (20, 5, -145),
    (5, 5, -137.5),
    (5, 5, -32.5),
    (20, 5, -25),
    (35, 5, -32.5),
    (5, 5, -85),
    (35, 5, -85),
]))
chamfer.setExpression("Size", "Params.chamfer_size")

sketch7 = body.newObject("Sketcher::SketchObject", "Sketch006")
sketch7.AttachmentSupport = (doc.getObject("XZ_Plane"), [""])
sketch7.MapMode = "FlatFace"
sketch7.AttachmentOffset = App.Placement(V(0, 0, -5), App.Rotation())
add_polygon(sketch7, [(5.1, -20), (0, -20), (0, 0), (5.1, 0)])
add_polygon(sketch7, [(40, 0), (40, -20), (34.9, -20), (34.9, 0)])
add_polygon(sketch7, [(27.6, 0), (27.6, -20), (12.4, -20), (12.4, 0)])
add_polygon(sketch7, [(0, -170), (0, -150), (5.1, -150), (5.1, -170)])
add_polygon(sketch7, [(34.9, -150), (40, -150), (40, -170), (34.9, -170)])
add_polygon(sketch7, [(12.4, -170), (12.4, -150), (27.6, -150), (27.6, -170)])
sketch7.addConstraint([
    Sketcher.Constraint("Horizontal", 0),
    Sketcher.Constraint("Vertical", 1),
    Sketcher.Constraint("Horizontal", 2),
    Sketcher.Constraint("Vertical", 3),
    Sketcher.Constraint("Vertical", 4),
    Sketcher.Constraint("Horizontal", 5),
    Sketcher.Constraint("Vertical", 6),
    Sketcher.Constraint("Horizontal", 7),
    Sketcher.Constraint("Vertical", 8),
    Sketcher.Constraint("Horizontal", 9),
    Sketcher.Constraint("Vertical", 10),
    Sketcher.Constraint("Horizontal", 11),
    Sketcher.Constraint("Vertical", 12),
    Sketcher.Constraint("Horizontal", 13),
    Sketcher.Constraint("Vertical", 14),
    Sketcher.Constraint("Horizontal", 15),
    Sketcher.Constraint("Horizontal", 16),
    Sketcher.Constraint("Vertical", 17),
    Sketcher.Constraint("Horizontal", 18),
    Sketcher.Constraint("Vertical", 19),
    Sketcher.Constraint("Vertical", 20),
    Sketcher.Constraint("Horizontal", 21),
    Sketcher.Constraint("Vertical", 22),
    Sketcher.Constraint("Horizontal", 23),
    Sketcher.Constraint("Coincident", 1, 2, -1, 1),
    Sketcher.Constraint("PointOnObject", 6, 2, -1),
    Sketcher.Constraint("PointOnObject", 10, 2, -1),
    Sketcher.Constraint("PointOnObject", 12, 2, -2),
    Sketcher.Constraint("Horizontal", 3, 2, 4, 2),
    Sketcher.Constraint("Horizontal", 5, 2, 8, 2),
    Sketcher.Constraint("Horizontal", 13, 2, 16, 2),
    Sketcher.Constraint("Horizontal", 15, 2, 17, 2),
    Sketcher.Constraint("Horizontal", 19, 2, 20, 2),
    Sketcher.Constraint("Horizontal", 18, 2, 22, 2),
    Sketcher.Constraint("Vertical", 3, 2, 13, 2),
    Sketcher.Constraint("Vertical", 7, 2, 16, 2),
    Sketcher.Constraint("Vertical", 6, 2, 18, 2),
    Sketcher.Constraint("Vertical", 10, 2, 20, 2),
    Sketcher.Constraint("Vertical", 11, 2, 21, 2),
    Sketcher.Constraint("Equal", 2, 5),
    Sketcher.Constraint("Equal", 10, 12),
    Sketcher.Constraint("DistanceY", 1, 1, 1, 2, 20.0),
    Sketcher.Constraint("DistanceX", 0, 2, 0, 1, 5.1),
    Sketcher.Constraint("DistanceX", 9, 2, 9, 1, 15.2),
    Sketcher.Constraint("DistanceX", -1, 1, 4, 2, 40.0),
    Sketcher.Constraint("DistanceX", 8, 2, 5, 2, 7.3),
    Sketcher.Constraint("DistanceY", 12, 2, -1, 1, 150.0),
])
sketch7.setExpression("Constraints[65]", "Params.sketch7_height")
sketch7.setExpression("Constraints[66]", "Params.sketch7_width")
sketch7.setExpression("Constraints[67]", "Params.sketch7_width2")
pocket3 = body.newObject("PartDesign::Pocket", "Pocket002")
pocket3.Profile = sketch7
pocket3.Type = "ThroughAll"
pocket3.Midplane = True

doc.recompute()
